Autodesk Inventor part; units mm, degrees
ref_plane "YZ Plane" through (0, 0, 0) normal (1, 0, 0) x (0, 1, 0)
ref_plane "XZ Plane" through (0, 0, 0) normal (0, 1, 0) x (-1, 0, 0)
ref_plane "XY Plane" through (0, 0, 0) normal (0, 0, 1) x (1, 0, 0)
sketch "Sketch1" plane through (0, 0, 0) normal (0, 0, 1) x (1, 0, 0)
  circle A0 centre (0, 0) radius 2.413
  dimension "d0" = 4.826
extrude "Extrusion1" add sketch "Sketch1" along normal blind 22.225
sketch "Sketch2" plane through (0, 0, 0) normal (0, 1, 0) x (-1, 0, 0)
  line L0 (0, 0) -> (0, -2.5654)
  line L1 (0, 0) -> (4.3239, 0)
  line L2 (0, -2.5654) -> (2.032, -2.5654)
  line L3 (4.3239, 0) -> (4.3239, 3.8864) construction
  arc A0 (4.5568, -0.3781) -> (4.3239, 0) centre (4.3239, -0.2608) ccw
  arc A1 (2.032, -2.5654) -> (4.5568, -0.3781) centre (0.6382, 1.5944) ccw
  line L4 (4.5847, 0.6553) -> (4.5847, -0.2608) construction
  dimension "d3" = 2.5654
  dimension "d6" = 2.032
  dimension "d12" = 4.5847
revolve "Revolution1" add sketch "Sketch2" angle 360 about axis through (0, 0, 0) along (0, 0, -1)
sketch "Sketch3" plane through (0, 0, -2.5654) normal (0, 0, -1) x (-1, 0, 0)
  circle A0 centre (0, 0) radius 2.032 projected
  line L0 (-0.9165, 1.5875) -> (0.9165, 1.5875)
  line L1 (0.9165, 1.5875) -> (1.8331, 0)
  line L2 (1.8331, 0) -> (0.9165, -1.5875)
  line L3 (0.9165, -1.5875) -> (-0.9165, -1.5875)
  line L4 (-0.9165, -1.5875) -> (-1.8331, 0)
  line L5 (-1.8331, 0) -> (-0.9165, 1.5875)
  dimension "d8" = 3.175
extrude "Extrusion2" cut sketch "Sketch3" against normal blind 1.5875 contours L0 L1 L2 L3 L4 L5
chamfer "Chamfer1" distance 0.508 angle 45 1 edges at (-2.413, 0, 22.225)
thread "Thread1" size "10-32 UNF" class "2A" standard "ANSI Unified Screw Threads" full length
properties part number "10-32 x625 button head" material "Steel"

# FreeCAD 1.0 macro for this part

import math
import FreeCAD as App
import Part
import Sketcher
from FreeCAD import Vector
Q = App.Units.Quantity


def edges_at(feature, points):
    """Names of the edges that pass closest to the given points."""
    edges = feature.Shape.Edges
    near = lambda p: min(range(len(edges)), key=lambda i: edges[i].distToShape(Part.Vertex(*p))[0])
    return sorted({f"Edge{near(p) + 1}" for p in points})


def add_polygon(sketch, points):
    """Adds a closed chain of lines whose ends are joined by coincident constraints."""
    first, n = sketch.GeometryCount, len(points)
    for a, b in zip(points, points[1:] + points[:1]):
        sketch.addGeometry(Part.LineSegment(App.Vector(*a, 0), App.Vector(*b, 0)), False)
    for i in range(n):
        sketch.addConstraint(Sketcher.Constraint("Coincident", first + i, 2, first + (i + 1) % n, 1))

doc = App.newDocument("Part")
body = doc.addObject("PartDesign::Body", "Body")

# Sketch on XY plane
sketch1 = body.newObject("Sketcher::SketchObject", "Sketch")
sketch1.AttachmentSupport = (doc.getObject("XY_Plane"), [""])
sketch1.MapMode = "FlatFace"
sketch1.addGeometry(Part.Circle(Vector(0, 0, 0), Vector(0, 0, 1), 2.4), False)
sketch1.addConstraint([
    Sketcher.Constraint("Coincident", 0, 3, -1, 1),
    Sketcher.Constraint("Diameter", 0, Q("0.19 in")),
])
pad1 = body.newObject("PartDesign::Pad", "Pad")
pad1.Profile = sketch1
pad1.Length = Q("0.875 in")

# Sketch on XZ plane
sketch2 = body.newObject("Sketcher::SketchObject", "Sketch001")
sketch2.AttachmentSupport = (doc.getObject("XZ_Plane"), [""])
sketch2.MapMode = "FlatFace"
sketch2.addGeometry([
    Part.LineSegment(Vector(-4.32, 0, 0), Vector(0, 0, 0)),  # 0
    Part.LineSegment(Vector(0, 0, 0), Vector(0, -2.57, 0)),  # 1
    Part.LineSegment(Vector(0, -2.57, 0), Vector(-2.03, -2.57, 0)),  # 2
    Part.ArcOfCircle(Part.Circle(Vector(-0.64, 1.59, 0), Vector(0, 0, 1), 4.39), math.radians(-153), math.radians(-109)),  # 3
    Part.ArcOfCircle(Part.Circle(Vector(-4.32, -0.26, 0), Vector(0, 0, 1), 0.26), math.radians(90), math.radians(207)),  # 4
], False)
sketch2.addConstraint([
    Sketcher.Constraint("Coincident", 0, 2, 1, 1),
    Sketcher.Constraint("Coincident", 1, 2, 2, 1),
    Sketcher.Constraint("Coincident", 2, 2, 3, 2),
    Sketcher.Constraint("Tangent", 3, 1, 4, 2),
    Sketcher.Constraint("Tangent", 4, 1, 0, 1),
    Sketcher.Constraint("Horizontal", 0),
    Sketcher.Constraint("Vertical", 1),
    Sketcher.Constraint("Horizontal", 2),
    Sketcher.Constraint("Coincident", 0, 2, -1, 1),
    Sketcher.Constraint("DistanceX", 2, 2, 2, 1, Q("0.08 in")),
    Sketcher.Constraint("DistanceY", 1, 2, 1, 1, Q("0.101 in")),
    Sketcher.Constraint("Radius", 3, 4.387),
    Sketcher.Constraint("Radius", 4, 0.2608),
    Sketcher.Constraint("DistanceX", 0, 1, 0, 2, 4.324),
])
revolution = body.newObject("PartDesign::Revolution", "Revolution")
revolution.Profile = sketch2
revolution.ReferenceAxis = (sketch2, ["V_Axis"])
revolution.Angle = 360

# Sketch on XY plane
sketch3 = body.newObject("Sketcher::SketchObject", "Sketch002")
sketch3.AttachmentSupport = (doc.getObject("XY_Plane"), [""])
sketch3.MapMode = "FlatFace"
sketch3.AttachmentOffset = App.Placement(Vector(0, 0, -0.101 * 25.4), App.Rotation())
add_polygon(sketch3, [(-0.9, 1.6), (0.9, 1.6), (1.8, 0), (0.9, -1.6), (-0.9, -1.6), (-1.8, 0)])  # lines 0-5
sketch3.addConstraint([
    Sketcher.Constraint("Horizontal", 0),
    Sketcher.Constraint("Horizontal", 3),
    Sketcher.Constraint("Symmetric", 0, 2, 3, 2, -1, 1),
    Sketcher.Constraint("Symmetric", 1, 2, 4, 2, -1, 1),
    Sketcher.Constraint("PointOnObject", 1, 2, -1),
    Sketcher.Constraint("Parallel", 2, 5),
    Sketcher.Constraint("Vertical", 0, 2, 2, 2),
    Sketcher.Constraint("DistanceY", 2, 2, 0, 2, Q("0.125 in")),
    Sketcher.Constraint("DistanceX", 0, 1, 0, 2, 1.833),
    Sketcher.Constraint("Distance", 1, 1.833),
])
pocket1 = body.newObject("PartDesign::Pocket", "Pocket")
pocket1.Profile = sketch3
pocket1.Length = Q("0.0625 in")
pocket1.Reversed = True
doc.recompute()

chamfer = body.newObject("PartDesign::Chamfer", "Chamfer")
chamfer.Base = (pocket1, edges_at(pocket1, [(-2.413, 0, 22.225)]))
chamfer.Size = Q("0.02 in")

doc.recompute()
